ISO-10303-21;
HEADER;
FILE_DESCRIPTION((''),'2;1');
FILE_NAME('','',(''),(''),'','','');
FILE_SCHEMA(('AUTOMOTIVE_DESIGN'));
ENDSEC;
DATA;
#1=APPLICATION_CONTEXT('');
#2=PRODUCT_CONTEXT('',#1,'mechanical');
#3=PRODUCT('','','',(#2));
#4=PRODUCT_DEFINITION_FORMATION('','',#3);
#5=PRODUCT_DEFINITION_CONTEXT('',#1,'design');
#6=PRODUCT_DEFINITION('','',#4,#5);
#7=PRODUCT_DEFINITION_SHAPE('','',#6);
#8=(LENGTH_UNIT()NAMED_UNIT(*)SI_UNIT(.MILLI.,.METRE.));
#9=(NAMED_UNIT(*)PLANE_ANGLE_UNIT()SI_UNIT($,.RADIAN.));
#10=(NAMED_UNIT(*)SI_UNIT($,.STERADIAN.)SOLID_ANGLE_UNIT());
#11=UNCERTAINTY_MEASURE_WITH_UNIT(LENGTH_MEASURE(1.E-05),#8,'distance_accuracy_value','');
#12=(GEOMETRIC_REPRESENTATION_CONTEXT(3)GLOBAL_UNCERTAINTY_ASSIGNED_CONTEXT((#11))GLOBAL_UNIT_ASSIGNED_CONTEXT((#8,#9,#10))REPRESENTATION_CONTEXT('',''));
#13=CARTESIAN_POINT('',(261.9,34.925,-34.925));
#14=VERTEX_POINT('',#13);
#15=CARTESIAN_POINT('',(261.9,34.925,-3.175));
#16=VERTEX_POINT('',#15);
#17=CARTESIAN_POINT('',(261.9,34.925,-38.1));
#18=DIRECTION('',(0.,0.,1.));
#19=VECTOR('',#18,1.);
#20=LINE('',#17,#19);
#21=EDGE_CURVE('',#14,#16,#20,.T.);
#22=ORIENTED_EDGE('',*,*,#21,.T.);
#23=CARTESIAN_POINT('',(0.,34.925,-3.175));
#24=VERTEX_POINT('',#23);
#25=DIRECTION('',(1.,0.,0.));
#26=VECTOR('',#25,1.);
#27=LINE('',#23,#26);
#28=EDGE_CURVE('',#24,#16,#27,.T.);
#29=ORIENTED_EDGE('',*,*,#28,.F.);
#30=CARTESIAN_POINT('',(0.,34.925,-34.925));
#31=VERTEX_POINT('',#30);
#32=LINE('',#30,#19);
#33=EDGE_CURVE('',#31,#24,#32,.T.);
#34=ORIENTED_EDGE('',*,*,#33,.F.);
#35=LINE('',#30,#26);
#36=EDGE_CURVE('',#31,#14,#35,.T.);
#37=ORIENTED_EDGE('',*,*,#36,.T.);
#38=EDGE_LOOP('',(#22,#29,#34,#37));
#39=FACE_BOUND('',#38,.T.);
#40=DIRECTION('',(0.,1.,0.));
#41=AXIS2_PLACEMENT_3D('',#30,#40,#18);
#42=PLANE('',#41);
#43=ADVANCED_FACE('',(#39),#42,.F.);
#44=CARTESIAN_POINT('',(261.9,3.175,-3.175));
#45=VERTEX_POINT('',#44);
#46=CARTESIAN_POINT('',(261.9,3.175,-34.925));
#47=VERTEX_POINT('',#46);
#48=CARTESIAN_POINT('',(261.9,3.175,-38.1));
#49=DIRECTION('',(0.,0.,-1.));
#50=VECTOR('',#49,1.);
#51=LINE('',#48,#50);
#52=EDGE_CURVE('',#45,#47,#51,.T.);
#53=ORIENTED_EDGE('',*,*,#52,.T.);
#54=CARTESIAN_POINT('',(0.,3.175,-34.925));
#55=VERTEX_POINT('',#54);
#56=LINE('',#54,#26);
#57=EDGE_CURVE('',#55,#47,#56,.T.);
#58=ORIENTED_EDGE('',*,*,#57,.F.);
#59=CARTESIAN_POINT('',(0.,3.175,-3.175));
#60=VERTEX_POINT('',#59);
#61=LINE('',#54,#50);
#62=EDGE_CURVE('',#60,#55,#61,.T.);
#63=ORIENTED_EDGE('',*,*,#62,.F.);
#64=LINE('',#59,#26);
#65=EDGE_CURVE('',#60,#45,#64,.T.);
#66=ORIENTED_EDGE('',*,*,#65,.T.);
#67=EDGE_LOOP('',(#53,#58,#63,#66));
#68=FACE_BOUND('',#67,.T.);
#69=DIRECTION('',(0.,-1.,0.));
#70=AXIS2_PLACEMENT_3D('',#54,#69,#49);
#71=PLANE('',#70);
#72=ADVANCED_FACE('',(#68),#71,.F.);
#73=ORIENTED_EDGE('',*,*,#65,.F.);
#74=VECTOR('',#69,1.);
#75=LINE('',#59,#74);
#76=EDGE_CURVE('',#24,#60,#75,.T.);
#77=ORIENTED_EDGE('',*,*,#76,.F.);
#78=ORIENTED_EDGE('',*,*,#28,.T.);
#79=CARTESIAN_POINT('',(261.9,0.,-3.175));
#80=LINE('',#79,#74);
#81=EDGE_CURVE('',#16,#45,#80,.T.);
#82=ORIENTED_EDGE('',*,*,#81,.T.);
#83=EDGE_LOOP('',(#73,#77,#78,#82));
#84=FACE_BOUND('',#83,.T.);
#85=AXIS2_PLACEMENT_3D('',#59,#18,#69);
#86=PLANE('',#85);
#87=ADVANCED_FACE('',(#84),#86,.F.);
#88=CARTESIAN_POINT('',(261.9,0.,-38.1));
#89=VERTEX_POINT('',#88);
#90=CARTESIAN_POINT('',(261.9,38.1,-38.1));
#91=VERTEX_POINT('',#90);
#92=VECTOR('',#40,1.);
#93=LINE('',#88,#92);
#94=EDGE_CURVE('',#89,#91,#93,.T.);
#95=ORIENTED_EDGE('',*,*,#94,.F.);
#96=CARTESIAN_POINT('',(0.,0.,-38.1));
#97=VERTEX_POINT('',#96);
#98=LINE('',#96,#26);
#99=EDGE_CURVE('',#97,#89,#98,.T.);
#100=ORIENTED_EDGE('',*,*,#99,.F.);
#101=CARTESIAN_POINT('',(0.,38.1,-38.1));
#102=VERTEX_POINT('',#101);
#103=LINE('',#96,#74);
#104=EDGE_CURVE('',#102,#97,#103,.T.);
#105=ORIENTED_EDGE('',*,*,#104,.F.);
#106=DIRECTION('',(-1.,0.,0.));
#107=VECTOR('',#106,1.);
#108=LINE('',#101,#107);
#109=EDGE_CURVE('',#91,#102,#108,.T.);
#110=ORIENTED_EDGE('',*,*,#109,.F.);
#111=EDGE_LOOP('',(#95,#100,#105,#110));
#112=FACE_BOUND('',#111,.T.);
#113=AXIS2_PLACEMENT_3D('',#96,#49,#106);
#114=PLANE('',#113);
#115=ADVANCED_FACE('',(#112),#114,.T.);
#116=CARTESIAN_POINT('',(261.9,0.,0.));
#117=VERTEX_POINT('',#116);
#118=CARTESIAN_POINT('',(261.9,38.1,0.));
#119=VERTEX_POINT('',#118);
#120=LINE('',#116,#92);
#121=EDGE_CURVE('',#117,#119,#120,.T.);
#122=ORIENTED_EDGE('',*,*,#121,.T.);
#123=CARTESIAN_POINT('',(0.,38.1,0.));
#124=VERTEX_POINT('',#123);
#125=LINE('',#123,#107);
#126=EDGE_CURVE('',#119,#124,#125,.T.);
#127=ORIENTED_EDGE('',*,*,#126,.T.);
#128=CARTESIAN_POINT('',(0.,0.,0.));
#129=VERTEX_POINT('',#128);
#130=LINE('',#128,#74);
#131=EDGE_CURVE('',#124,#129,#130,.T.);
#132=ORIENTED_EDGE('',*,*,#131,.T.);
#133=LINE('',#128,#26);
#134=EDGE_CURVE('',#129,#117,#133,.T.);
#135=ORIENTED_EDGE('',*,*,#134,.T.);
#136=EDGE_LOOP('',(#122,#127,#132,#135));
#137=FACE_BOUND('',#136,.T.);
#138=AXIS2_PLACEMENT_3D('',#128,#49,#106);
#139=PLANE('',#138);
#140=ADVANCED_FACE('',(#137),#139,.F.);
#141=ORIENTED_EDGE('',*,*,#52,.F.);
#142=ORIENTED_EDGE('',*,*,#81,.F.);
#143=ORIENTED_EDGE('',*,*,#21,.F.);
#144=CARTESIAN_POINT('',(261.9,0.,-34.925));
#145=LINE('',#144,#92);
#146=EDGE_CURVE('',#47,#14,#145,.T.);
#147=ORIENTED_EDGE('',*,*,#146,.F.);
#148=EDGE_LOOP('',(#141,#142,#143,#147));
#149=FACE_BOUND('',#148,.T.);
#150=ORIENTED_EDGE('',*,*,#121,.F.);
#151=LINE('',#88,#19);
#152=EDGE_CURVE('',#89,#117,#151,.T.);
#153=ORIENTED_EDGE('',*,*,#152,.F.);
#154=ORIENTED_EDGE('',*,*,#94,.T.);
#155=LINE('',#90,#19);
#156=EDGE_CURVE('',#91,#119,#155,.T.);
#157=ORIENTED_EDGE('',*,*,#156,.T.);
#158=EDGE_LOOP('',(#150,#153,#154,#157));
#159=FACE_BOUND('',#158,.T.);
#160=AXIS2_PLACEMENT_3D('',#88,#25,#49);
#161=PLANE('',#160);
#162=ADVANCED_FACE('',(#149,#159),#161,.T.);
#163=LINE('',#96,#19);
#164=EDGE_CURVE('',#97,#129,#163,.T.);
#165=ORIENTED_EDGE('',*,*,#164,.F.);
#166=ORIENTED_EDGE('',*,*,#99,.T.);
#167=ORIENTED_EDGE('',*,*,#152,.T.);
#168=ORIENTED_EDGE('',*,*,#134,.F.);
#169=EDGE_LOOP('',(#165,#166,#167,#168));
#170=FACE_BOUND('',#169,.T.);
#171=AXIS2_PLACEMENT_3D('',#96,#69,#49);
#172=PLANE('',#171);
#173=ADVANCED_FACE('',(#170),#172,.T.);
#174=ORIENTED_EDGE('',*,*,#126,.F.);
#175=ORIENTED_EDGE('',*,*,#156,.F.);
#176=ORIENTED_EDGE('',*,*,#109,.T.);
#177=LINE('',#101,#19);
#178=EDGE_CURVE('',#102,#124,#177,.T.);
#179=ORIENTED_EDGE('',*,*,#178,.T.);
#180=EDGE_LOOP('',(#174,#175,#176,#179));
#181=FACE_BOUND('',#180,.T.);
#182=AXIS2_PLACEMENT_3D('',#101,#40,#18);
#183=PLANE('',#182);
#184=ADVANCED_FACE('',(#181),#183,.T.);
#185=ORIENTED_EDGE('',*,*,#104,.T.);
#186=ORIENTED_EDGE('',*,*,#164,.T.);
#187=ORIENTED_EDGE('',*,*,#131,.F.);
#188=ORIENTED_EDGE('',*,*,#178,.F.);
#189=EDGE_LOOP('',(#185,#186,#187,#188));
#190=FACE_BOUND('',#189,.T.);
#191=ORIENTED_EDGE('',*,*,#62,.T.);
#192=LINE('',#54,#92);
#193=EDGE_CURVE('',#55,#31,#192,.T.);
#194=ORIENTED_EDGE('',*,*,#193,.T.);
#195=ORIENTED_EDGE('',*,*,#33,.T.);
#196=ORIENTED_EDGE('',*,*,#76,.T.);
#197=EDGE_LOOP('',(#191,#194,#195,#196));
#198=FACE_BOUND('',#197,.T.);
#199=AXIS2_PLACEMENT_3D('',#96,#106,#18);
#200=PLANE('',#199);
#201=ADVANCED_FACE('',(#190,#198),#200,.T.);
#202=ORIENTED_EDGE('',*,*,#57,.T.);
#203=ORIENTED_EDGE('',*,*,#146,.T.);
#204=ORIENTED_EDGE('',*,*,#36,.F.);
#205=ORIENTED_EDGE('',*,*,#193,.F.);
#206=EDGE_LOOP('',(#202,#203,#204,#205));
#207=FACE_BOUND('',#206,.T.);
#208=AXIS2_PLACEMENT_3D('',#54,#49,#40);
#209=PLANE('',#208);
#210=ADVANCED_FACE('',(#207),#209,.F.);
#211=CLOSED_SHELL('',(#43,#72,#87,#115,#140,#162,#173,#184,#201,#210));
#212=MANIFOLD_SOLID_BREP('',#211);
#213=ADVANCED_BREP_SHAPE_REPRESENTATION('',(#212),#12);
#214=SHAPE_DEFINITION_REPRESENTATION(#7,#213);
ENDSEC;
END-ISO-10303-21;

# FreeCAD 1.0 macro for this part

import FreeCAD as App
import Part
import Sketcher
from FreeCAD import Vector
Q = App.Units.Quantity


def add_polygon(sketch, points):
    """Adds a closed chain of lines whose ends are joined by coincident constraints."""
    first, n = sketch.GeometryCount, len(points)
    for a, b in zip(points, points[1:] + points[:1]):
        sketch.addGeometry(Part.LineSegment(App.Vector(*a, 0), App.Vector(*b, 0)), False)
    for i in range(n):
        sketch.addConstraint(Sketcher.Constraint("Coincident", first + i, 2, first + (i + 1) % n, 1))

doc = App.newDocument("Part")
body = doc.addObject("PartDesign::Body", "Body")

sketch1 = doc.addObject("Sketcher::SketchObject", "Sketch")
body.addObject(sketch1)
sketch1.AttachmentSupport = (doc.XY_Plane, [""])
sketch1.MapMode = "FlatFace"
add_polygon(sketch1, [(0, 38), (0, 0), (262, 0), (262, 38)])
sketch1.addConstraint([
    Sketcher.Constraint("Vertical", 0),
    Sketcher.Constraint("Horizontal", 1),
    Sketcher.Constraint("Vertical", 2),
    Sketcher.Constraint("Horizontal", 3),
    Sketcher.Constraint("Coincident", 0, 2, -1, 1),
    Sketcher.Constraint("DistanceX", 1, 1, 1, 2, Q("261.9 mm")),
    Sketcher.Constraint("DistanceY", 0, 2, 0, 1, Q("38.1 mm")),
])
pad1 = doc.addObject("PartDesign::Pad", "Pad")
body.addObject(pad1)
pad1.Profile = sketch1
pad1.Length = 38.1
pad1.Reversed = True

sketch2 = doc.addObject("Sketcher::SketchObject", "Sketch001")
body.addObject(sketch2)
sketch2.AttachmentSupport = (doc.YZ_Plane, [""])
sketch2.MapMode = "FlatFace"
sketch2.AttachmentOffset = App.Placement(Vector(0, 0, 261.9), App.Rotation())
add_polygon(sketch2, [(35, -3), (3, -3), (3, -35), (35, -35)])
sketch2.addConstraint([
    Sketcher.Constraint("Horizontal", 0),
    Sketcher.Constraint("Vertical", 1),
    Sketcher.Constraint("Horizontal", 2),
    Sketcher.Constraint("Vertical", 3),
    Sketcher.Constraint("Equal", 2, 1),
    Sketcher.Constraint("DistanceX", 0, 2, 0, 1, Q("31.75 mm")),
    Sketcher.Constraint("DistanceX", -1, 1, 0, 2, Q("3.175 mm")),
    Sketcher.Constraint("DistanceY", 0, 2, -1, 1, Q("3.175 mm")),
])
pocket1 = doc.addObject("PartDesign::Pocket", "Pocket")
body.addObject(pocket1)
pocket1.Profile = sketch2
pocket1.Type = "ThroughAll"
pocket1.Midplane = True

doc.recompute()
